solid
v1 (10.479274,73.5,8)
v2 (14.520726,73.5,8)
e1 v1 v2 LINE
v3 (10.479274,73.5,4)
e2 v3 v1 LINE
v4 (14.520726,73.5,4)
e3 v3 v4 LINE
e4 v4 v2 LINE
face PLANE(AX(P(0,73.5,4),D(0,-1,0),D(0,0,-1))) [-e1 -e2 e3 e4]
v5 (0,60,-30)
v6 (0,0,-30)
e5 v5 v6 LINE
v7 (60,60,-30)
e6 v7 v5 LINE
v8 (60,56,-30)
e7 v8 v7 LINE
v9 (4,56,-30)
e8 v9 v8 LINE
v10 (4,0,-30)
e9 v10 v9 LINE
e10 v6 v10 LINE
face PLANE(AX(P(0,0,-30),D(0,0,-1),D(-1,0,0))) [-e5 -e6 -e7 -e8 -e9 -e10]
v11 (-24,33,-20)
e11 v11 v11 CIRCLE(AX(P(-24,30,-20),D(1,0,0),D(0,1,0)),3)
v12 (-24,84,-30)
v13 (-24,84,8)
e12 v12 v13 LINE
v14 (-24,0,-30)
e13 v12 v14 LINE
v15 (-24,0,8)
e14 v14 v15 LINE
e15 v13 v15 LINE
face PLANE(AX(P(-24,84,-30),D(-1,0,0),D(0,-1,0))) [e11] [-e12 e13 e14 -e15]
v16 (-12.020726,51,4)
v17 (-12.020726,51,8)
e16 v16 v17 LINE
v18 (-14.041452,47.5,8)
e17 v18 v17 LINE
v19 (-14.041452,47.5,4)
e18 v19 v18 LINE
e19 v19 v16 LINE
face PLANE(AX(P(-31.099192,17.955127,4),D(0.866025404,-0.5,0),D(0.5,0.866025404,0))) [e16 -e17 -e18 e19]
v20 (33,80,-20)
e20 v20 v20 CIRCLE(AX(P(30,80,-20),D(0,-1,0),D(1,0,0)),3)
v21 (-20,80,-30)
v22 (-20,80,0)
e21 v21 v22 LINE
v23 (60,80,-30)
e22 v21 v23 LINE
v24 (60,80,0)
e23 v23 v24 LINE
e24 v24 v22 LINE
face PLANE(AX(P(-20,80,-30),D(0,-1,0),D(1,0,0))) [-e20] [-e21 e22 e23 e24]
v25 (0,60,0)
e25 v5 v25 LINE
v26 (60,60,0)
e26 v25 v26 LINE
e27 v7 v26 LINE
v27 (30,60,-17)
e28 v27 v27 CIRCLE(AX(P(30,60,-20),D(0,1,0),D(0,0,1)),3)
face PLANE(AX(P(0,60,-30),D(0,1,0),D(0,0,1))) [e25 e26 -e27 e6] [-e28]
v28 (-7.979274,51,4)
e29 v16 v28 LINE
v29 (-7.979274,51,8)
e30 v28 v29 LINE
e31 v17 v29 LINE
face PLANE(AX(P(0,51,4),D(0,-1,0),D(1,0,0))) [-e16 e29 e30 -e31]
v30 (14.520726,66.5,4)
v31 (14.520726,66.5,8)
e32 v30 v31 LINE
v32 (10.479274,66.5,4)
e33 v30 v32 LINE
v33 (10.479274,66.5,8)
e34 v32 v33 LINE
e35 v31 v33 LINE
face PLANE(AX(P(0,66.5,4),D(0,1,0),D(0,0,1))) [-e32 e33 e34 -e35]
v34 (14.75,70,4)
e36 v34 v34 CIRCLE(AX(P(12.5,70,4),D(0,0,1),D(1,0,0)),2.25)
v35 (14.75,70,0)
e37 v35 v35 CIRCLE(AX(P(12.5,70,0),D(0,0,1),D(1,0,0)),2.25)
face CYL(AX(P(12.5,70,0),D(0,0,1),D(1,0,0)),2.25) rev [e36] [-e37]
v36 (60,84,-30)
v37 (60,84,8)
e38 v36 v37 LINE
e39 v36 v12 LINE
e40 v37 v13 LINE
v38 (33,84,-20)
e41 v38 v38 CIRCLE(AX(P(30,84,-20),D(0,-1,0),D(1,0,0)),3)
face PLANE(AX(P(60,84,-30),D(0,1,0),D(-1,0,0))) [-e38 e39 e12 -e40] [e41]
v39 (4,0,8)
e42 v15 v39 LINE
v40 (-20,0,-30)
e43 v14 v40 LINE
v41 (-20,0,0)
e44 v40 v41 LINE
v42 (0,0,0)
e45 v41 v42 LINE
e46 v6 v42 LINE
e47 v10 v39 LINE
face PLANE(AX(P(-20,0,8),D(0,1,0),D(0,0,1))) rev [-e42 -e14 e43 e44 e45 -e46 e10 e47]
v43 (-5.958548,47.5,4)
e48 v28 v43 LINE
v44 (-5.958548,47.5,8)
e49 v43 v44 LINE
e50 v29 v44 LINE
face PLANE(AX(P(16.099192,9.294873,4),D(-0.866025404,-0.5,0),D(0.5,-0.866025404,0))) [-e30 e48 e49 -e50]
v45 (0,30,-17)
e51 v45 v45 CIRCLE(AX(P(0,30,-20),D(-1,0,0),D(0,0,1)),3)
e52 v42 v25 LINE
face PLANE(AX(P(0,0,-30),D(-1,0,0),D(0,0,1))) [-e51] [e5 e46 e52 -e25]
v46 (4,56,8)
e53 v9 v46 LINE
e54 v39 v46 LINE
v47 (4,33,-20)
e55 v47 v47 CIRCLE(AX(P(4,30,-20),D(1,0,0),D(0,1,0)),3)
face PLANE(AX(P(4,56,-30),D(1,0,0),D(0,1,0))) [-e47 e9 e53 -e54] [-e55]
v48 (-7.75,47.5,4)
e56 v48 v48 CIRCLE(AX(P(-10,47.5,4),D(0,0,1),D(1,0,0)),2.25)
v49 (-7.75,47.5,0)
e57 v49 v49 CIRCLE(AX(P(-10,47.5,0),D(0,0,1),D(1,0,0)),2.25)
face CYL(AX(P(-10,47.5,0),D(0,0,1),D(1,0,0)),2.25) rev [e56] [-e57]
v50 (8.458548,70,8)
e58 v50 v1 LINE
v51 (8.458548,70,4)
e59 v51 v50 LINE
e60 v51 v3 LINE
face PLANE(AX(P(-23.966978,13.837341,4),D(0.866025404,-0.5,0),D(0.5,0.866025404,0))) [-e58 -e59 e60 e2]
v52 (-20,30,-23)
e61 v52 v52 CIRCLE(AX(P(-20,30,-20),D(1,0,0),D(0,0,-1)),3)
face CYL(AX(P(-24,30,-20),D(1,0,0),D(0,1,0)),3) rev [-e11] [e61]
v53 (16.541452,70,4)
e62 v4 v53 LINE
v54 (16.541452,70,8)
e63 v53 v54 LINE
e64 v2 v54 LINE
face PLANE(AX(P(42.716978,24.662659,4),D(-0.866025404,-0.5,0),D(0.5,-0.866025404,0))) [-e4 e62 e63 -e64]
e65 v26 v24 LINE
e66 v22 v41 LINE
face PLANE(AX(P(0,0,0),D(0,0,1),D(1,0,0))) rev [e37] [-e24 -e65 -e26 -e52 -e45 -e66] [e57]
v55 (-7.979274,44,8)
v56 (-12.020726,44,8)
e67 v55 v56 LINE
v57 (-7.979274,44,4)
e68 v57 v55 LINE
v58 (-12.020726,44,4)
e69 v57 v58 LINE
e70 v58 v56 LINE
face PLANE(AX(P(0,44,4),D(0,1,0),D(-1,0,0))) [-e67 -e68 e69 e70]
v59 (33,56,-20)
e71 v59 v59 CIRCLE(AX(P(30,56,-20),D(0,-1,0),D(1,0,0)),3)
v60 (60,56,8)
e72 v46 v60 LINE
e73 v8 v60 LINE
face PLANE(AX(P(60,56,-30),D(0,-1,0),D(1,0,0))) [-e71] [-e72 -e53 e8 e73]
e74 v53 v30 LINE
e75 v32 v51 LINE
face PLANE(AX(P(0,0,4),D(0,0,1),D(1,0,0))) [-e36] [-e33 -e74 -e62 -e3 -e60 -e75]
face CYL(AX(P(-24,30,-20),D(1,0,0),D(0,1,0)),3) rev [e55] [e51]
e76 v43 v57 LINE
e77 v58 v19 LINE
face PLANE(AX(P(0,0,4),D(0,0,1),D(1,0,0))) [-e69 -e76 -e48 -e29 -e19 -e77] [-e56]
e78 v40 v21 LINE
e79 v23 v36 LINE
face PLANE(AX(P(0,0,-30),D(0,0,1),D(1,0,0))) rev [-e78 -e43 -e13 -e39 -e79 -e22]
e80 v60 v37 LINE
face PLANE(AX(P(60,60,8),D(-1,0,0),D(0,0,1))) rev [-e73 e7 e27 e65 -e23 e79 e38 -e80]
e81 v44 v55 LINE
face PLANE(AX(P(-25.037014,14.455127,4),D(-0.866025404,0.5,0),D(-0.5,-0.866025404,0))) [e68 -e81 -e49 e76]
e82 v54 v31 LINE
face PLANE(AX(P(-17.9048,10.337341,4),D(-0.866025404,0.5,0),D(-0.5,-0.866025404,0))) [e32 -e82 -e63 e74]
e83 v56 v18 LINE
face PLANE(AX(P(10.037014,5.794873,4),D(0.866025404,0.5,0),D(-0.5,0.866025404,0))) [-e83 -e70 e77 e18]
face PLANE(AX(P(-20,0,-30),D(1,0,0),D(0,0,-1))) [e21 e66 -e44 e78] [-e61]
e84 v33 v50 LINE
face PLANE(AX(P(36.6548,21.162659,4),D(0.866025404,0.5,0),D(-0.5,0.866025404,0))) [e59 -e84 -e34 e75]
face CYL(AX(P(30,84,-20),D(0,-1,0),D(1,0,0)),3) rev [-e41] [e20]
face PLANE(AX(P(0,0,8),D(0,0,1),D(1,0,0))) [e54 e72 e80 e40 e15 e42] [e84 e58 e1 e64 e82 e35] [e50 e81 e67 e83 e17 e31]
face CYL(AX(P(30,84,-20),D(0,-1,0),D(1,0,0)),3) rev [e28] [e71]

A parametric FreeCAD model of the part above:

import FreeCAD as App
import Part
import Sketcher
from FreeCAD import Vector
Q = App.Units.Quantity


def add_polygon(sketch, points):
    """Adds a closed chain of lines whose ends are joined by coincident constraints."""
    first, n = sketch.GeometryCount, len(points)
    for a, b in zip(points, points[1:] + points[:1]):
        sketch.addGeometry(Part.LineSegment(App.Vector(*a, 0), App.Vector(*b, 0)), False)
    for i in range(n):
        sketch.addConstraint(Sketcher.Constraint("Coincident", first + i, 2, first + (i + 1) % n, 1))

doc = App.newDocument("Part")
body = doc.addObject("PartDesign::Body", "Body")

# Sketch on XY plane
sketch1 = body.newObject("Sketcher::SketchObject", "Sketch")
sketch1.AttachmentSupport = (doc.getObject("XY_Plane"), [""])
sketch1.MapMode = "FlatFace"
add_polygon(sketch1, [(0, 0), (0, 60), (60, 60), (60, 80), (-20, 80), (-20, 0)])  # lines 0-5
sketch1.addConstraint([
    Sketcher.Constraint("Vertical", 0),
    Sketcher.Constraint("Horizontal", 1),
    Sketcher.Constraint("Vertical", 2),
    Sketcher.Constraint("Horizontal", 3),
    Sketcher.Constraint("Vertical", 4),
    Sketcher.Constraint("Horizontal", 5),
    Sketcher.Constraint("Coincident", 5, 2, -1, 1),
    Sketcher.Constraint("Equal", 1, 0),
    Sketcher.Constraint("Equal", 5, 2),
    Sketcher.Constraint("DistanceX", 1, 1, 1, 2, Q("60 mm")),
    Sketcher.Constraint("DistanceX", 3, 2, 3, 1, Q("80 mm")),
])
pad1 = body.newObject("PartDesign::Pad", "Pad")
pad1.Profile = sketch1
pad1.Length = 8

# Sketch on XY plane
sketch2 = body.newObject("Sketcher::SketchObject", "Sketch001")
sketch2.AttachmentSupport = (doc.getObject("XY_Plane"), [""])
sketch2.MapMode = "FlatFace"
sketch2.AttachmentOffset = App.Placement(Vector(0, 0, 8), App.Rotation())
add_polygon(sketch2, [(-12, 51), (-14, 47.5), (-12, 44), (-8, 44), (-6, 47.5), (-8, 51)])  # lines 0-5
add_polygon(sketch2, [(10.5, 73.5), (8.5, 70), (10.5, 66.5), (14.5, 66.5), (16.5, 70), (14.5, 73.5)])  # lines 6-11
sketch2.addConstraint([
    Sketcher.Constraint("Horizontal", 2),
    Sketcher.Constraint("Horizontal", 5),
    Sketcher.Constraint("Horizontal", 8),
    Sketcher.Constraint("Horizontal", 11),
    Sketcher.Constraint("Parallel", 0, 3),
    Sketcher.Constraint("Parallel", 1, 4),
    Sketcher.Constraint("Parallel", 3, 6),
    Sketcher.Constraint("Parallel", 4, 7),
    Sketcher.Constraint("Parallel", 6, 9),
    Sketcher.Constraint("Parallel", 7, 10),
    Sketcher.Constraint("Horizontal", 0, 2, 3, 2),
    Sketcher.Constraint("Horizontal", 6, 2, 9, 2),
    Sketcher.Constraint("Vertical", 2, 2, 4, 2),
    Sketcher.Constraint("Vertical", 1, 2, 5, 2),
    Sketcher.Constraint("Vertical", 8, 2, 10, 2),
    Sketcher.Constraint("Equal", 5, 8),
    Sketcher.Constraint("Equal", 4, 6),
    Sketcher.Constraint("Angle", 0, Q("-120 deg")),
    Sketcher.Constraint("DistanceY", -1, 1, 1, 2, Q("44 mm")),
    Sketcher.Constraint("DistanceY", -1, 1, 4, 2, Q("51 mm")),
    Sketcher.Constraint("DistanceY", -1, 1, 6, 2, Q("70 mm")),
    Sketcher.Constraint("DistanceX", 0, 2, 6, 2, Q("22.5 mm")),
    Sketcher.Constraint("DistanceX", 2, 1, 2, 2, Q("4.041452 mm")),
    Sketcher.Constraint("DistanceX", 0, 2, -1, 1, Q("14.041452 mm")),
])
pocket1 = body.newObject("PartDesign::Pocket", "Pocket")
pocket1.Profile = sketch2
pocket1.Length = 4

# Sketch on XY plane
sketch3 = body.newObject("Sketcher::SketchObject", "Sketch002")
sketch3.AttachmentSupport = (doc.getObject("XY_Plane"), [""])
sketch3.MapMode = "FlatFace"
sketch3.AttachmentOffset = App.Placement(Vector(0, 0, 4), App.Rotation())
sketch3.addGeometry([
    Part.Circle(Vector(-10, 47.5, 0), Vector(0, 0, 1), 2.2),
    Part.Circle(Vector(12.5, 70, 0), Vector(0, 0, 1), 2.2),
], False)
sketch3.addConstraint([
    Sketcher.Constraint("Equal", 0, 1),
    Sketcher.Constraint("Diameter", 0, Q("4.5 mm")),
    Sketcher.Constraint("DistanceX", 0, 3, -1, 1, Q("10 mm")),
    Sketcher.Constraint("DistanceY", -1, 1, 1, 3, Q("70 mm")),
    Sketcher.Constraint("DistanceY", -1, 1, 0, 3, Q("47.5 mm")),
    Sketcher.Constraint("DistanceX", -1, 1, 1, 3, Q("12.5 mm")),
])
pocket2 = body.newObject("PartDesign::Pocket", "Pocket001")
pocket2.Profile = sketch3
pocket2.Type = "ThroughAll"

# Sketch on XY plane
sketch4 = body.newObject("Sketcher::SketchObject", "Sketch003")
sketch4.AttachmentSupport = (doc.getObject("XY_Plane"), [""])
sketch4.MapMode = "FlatFace"
sketch4.AttachmentOffset = App.Placement(Vector(0, 0, 8), App.Rotation())
add_polygon(sketch4, [(0, 60), (0, 0), (4, 0), (4, 56), (60, 56), (60, 60)])  # lines 0-5
add_polygon(sketch4, [(60, 80), (60, 84), (-24, 84), (-24, 0), (-20, 0), (-20, 80)])  # lines 6-11
sketch4.addConstraint([
    Sketcher.Constraint("Vertical", 0),
    Sketcher.Constraint("Horizontal", 1),
    Sketcher.Constraint("Vertical", 2),
    Sketcher.Constraint("Horizontal", 3),
    Sketcher.Constraint("Vertical", 4),
    Sketcher.Constraint("Horizontal", 5),
    Sketcher.Constraint("Vertical", 6),
    Sketcher.Constraint("Horizontal", 7),
    Sketcher.Constraint("Vertical", 8),
    Sketcher.Constraint("Horizontal", 9),
    Sketcher.Constraint("Vertical", 10),
    Sketcher.Constraint("Horizontal", 11),
    Sketcher.Constraint("Coincident", 0, 2, -1, 1),
    Sketcher.Constraint("PointOnObject", 8, 2, -1),
    Sketcher.Constraint("Vertical", 4, 2, 6, 2),
    Sketcher.Constraint("Equal", 1, 9),
    Sketcher.Constraint("Equal", 5, 0),
    Sketcher.Constraint("Equal", 3, 2),
    Sketcher.Constraint("Equal", 4, 6),
    Sketcher.Constraint("Equal", 7, 8),
    Sketcher.Constraint("DistanceX", 1, 1, 1, 2, Q("4 mm")),
    Sketcher.Constraint("DistanceX", 3, 1, 3, 2, Q("56 mm")),
    Sketcher.Constraint("DistanceX", 7, 2, 7, 1, Q("84 mm")),
])
pad2 = body.newObject("PartDesign::Pad", "Pad001")
pad2.Profile = sketch4
pad2.Length = 38
pad2.Reversed = True

# Sketch on XZ plane
sketch5 = body.newObject("Sketcher::SketchObject", "Sketch004")
sketch5.AttachmentSupport = (doc.getObject("XZ_Plane"), [""])
sketch5.MapMode = "FlatFace"
sketch5.AttachmentOffset = App.Placement(Vector(0, 0, -56), App.Rotation())
sketch5.addGeometry(Part.Circle(Vector(30, -20, 0), Vector(0, 0, 1), 3), False)
sketch5.addConstraint([
    Sketcher.Constraint("Diameter", 0, Q("6 mm")),
    Sketcher.Constraint("DistanceX", -1, 1, 0, 3, Q("30 mm")),
    Sketcher.Constraint("DistanceY", 0, 3, -1, 1, Q("20 mm")),
])
pocket3 = body.newObject("PartDesign::Pocket", "Pocket002")
pocket3.Profile = sketch5
pocket3.Type = "ThroughAll"

# Sketch on YZ plane
sketch6 = body.newObject("Sketcher::SketchObject", "Sketch005")
sketch6.AttachmentSupport = (doc.getObject("YZ_Plane"), [""])
sketch6.MapMode = "FlatFace"
sketch6.AttachmentOffset = App.Placement(Vector(0, 0, 4), App.Rotation())
sketch6.addGeometry(Part.Circle(Vector(30, -20, 0), Vector(0, 0, 1), 3), False)
sketch6.addConstraint([
    Sketcher.Constraint("Diameter", 0, Q("6 mm")),
    Sketcher.Constraint("DistanceX", -1, 1, 0, 3, Q("30 mm")),
    Sketcher.Constraint("DistanceY", 0, 3, -1, 1, Q("20 mm")),
])
pocket4 = body.newObject("PartDesign::Pocket", "Pocket003")
pocket4.Profile = sketch6
pocket4.Type = "ThroughAll"

doc.recompute()
